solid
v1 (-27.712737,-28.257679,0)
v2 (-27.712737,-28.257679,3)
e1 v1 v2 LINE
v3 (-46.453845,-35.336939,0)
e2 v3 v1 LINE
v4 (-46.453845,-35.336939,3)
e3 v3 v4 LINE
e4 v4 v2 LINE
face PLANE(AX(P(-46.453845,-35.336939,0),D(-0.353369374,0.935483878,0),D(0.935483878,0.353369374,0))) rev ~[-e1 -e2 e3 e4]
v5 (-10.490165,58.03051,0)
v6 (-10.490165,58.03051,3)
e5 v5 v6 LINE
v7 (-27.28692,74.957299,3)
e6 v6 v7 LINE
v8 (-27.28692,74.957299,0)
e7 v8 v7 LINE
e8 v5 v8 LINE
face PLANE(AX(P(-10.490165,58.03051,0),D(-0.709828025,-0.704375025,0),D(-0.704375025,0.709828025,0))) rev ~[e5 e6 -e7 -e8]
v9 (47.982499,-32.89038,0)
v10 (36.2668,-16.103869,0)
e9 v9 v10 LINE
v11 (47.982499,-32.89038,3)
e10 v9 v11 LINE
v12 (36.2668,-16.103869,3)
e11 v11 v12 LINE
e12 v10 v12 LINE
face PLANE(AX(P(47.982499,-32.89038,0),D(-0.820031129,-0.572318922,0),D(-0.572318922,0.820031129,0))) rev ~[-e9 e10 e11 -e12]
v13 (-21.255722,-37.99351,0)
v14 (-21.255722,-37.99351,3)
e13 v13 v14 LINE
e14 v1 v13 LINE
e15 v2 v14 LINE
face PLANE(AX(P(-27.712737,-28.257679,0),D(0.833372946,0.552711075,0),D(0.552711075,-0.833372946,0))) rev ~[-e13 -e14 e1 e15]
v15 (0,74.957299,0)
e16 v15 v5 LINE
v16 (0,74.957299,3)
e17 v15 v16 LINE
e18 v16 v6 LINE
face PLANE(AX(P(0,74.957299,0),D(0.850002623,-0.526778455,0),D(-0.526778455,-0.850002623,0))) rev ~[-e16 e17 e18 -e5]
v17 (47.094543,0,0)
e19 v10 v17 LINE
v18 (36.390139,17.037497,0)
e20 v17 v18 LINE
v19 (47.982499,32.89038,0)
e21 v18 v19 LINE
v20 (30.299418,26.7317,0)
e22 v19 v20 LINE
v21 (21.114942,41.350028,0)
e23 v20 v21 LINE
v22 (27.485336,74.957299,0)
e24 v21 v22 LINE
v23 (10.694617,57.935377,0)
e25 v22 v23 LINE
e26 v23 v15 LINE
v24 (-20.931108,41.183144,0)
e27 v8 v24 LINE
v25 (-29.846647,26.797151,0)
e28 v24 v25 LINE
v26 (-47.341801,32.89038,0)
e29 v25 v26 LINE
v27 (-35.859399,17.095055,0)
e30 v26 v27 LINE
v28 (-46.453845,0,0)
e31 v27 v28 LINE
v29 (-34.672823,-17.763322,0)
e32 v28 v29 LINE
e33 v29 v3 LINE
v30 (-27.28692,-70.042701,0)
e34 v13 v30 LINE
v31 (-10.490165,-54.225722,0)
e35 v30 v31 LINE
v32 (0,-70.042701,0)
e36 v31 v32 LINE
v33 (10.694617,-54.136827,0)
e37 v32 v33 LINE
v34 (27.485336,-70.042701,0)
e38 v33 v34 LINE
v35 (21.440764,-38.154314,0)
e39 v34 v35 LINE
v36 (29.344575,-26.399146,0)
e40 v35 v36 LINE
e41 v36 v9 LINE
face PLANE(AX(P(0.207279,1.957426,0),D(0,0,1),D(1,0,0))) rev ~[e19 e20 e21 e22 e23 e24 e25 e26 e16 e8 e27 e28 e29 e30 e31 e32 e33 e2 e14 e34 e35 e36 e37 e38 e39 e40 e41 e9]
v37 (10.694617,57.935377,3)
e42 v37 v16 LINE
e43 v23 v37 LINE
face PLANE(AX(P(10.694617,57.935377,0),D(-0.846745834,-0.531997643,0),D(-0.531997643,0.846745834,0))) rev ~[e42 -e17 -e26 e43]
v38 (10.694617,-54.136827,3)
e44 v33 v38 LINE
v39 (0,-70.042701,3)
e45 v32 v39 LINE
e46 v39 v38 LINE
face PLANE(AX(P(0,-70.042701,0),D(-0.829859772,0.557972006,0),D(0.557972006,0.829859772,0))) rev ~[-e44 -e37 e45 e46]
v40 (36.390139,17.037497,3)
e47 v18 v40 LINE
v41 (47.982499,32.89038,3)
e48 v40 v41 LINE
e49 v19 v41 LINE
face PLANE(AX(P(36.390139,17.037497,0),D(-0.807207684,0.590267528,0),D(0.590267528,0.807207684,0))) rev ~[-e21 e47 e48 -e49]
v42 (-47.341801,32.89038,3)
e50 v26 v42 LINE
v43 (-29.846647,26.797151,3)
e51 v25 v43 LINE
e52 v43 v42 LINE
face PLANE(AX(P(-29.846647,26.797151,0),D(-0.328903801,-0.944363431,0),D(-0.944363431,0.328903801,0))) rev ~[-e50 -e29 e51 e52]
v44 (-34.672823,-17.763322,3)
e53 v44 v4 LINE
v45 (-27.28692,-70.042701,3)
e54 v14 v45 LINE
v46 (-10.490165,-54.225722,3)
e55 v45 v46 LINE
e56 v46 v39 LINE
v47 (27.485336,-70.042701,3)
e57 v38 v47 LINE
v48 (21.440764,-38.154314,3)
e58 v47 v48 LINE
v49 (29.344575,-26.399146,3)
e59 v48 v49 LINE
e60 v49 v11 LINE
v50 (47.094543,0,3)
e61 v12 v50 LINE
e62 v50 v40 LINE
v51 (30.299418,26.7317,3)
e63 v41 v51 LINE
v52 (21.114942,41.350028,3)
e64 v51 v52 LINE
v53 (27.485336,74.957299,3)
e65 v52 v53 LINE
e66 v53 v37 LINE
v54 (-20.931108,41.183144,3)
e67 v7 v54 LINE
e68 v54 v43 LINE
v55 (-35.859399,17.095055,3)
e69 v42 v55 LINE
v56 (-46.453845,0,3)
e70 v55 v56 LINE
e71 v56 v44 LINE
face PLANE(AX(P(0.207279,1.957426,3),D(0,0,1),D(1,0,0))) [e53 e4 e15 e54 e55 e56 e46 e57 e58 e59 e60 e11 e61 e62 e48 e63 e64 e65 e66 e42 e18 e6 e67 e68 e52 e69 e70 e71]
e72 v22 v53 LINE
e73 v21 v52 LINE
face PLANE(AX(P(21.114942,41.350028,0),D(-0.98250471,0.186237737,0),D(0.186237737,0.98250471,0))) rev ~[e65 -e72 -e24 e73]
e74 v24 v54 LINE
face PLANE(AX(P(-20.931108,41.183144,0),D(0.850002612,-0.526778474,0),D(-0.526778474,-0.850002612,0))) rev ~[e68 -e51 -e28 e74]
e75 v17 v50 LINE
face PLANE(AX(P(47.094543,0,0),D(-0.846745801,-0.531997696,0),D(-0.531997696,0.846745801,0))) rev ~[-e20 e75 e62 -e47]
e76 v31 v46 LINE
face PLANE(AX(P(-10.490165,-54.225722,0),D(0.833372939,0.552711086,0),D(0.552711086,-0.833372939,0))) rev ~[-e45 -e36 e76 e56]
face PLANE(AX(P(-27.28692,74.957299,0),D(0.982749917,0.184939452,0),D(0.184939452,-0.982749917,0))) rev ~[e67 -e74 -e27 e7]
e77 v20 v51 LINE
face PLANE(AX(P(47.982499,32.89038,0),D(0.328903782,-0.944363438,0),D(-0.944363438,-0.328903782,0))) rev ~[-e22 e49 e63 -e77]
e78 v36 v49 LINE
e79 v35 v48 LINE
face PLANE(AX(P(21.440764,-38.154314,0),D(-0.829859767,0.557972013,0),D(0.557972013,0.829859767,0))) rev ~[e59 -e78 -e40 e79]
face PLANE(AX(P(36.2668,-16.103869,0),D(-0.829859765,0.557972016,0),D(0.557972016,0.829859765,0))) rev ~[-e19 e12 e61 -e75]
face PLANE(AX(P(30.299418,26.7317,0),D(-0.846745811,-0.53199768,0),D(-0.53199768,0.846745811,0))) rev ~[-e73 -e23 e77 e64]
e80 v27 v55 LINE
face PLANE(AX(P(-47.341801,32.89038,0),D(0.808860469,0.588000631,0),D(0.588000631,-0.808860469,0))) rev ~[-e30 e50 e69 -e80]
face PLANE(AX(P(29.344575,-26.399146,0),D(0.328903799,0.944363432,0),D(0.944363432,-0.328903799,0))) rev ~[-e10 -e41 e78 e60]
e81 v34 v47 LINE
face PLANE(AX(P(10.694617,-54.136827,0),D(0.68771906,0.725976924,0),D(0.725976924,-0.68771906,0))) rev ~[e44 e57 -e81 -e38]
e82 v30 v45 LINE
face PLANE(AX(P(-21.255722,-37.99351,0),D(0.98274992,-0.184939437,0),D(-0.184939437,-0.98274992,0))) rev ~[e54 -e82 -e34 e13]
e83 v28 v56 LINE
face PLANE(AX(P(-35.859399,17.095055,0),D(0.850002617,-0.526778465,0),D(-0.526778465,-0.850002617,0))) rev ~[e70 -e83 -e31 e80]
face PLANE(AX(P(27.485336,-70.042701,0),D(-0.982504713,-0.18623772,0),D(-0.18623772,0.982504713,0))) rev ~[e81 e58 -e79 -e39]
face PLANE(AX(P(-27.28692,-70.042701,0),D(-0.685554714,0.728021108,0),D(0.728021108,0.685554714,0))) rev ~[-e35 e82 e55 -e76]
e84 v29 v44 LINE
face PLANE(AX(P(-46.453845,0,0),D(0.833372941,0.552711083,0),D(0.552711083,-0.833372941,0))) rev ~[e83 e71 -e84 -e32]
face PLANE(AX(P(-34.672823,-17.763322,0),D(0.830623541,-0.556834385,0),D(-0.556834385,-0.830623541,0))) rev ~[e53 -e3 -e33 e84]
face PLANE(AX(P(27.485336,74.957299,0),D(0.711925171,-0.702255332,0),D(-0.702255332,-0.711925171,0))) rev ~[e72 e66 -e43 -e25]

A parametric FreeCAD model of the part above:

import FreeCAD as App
import Part
import Sketcher
from FreeCAD import Vector


def add_polygon(sketch, points):
    """Adds a closed chain of lines whose ends are joined by coincident constraints."""
    first, n = sketch.GeometryCount, len(points)
    for a, b in zip(points, points[1:] + points[:1]):
        sketch.addGeometry(Part.LineSegment(App.Vector(*a, 0), App.Vector(*b, 0)), False)
    for i in range(n):
        sketch.addConstraint(Sketcher.Constraint("Coincident", first + i, 2, first + (i + 1) % n, 1))

doc = App.newDocument("Part")
params = doc.addObject("Spreadsheet::Sheet", "Params")
for row, (alias, value) in enumerate([
    ("pad1_length", "3 mm"),
], start=1):
    params.set(f"A{row}", alias)
    params.set(f"B{row}", "=" + value)
    params.setAlias(f"B{row}", alias)

body = doc.addObject("PartDesign::Body", "Body")

sketch1 = body.newObject("Sketcher::SketchObject", "Sketch")
sketch1.AttachmentSupport = (doc.getObject("XY_Plane"), [""])
sketch1.MapMode = "FlatFace"
add_polygon(sketch1, [(-35.859399, 17.095055), (-46.453845, 0), (-34.672823, -17.763322), (-46.453845, -35.336939), (-27.712737, -28.257679), (-21.255722, -37.99351), (-27.28692, -70.042701), (-10.490165, -54.225722), (0, -70.042701), (10.694617, -54.136827), (27.485336, -70.042701), (21.440764, -38.154314), (29.344575, -26.399146), (47.982499, -32.89038), (36.2668, -16.103869), (47.094543, 0), (36.390139, 17.037497), (47.982499, 32.89038), (30.299418, 26.7317), (21.114942, 41.350028), (27.485336, 74.957299), (10.694617, 57.935377), (0, 74.957299), (-10.490165, 58.03051), (-27.28692, 74.957299), (-20.931108, 41.183144), (-29.846647, 26.797151), (-47.341801, 32.89038)])
sketch1.addConstraint([
    Sketcher.Constraint("Symmetric", 12, 2, 16, 2, -1),
    Sketcher.Constraint("PointOnObject", 0, 2, -1),
    Sketcher.Constraint("PointOnObject", 7, 2, -2),
    Sketcher.Constraint("PointOnObject", 14, 2, -1),
    Sketcher.Constraint("PointOnObject", 21, 2, -2),
    Sketcher.Constraint("Parallel", 1, 4),
    Sketcher.Constraint("Parallel", 4, 7),
    Sketcher.Constraint("Parallel", 8, 11),
    Sketcher.Constraint("Parallel", 11, 14),
    Sketcher.Constraint("Parallel", 15, 18),
    Sketcher.Constraint("Parallel", 18, 21),
    Sketcher.Constraint("Parallel", 0, 22),
    Sketcher.Constraint("Parallel", 22, 25),
    Sketcher.Constraint("Parallel", 12, 26),
    Sketcher.Constraint("Horizontal", 5, 2, 7, 2),
    Sketcher.Constraint("Horizontal", 7, 2, 9, 2),
    Sketcher.Constraint("Horizontal", 19, 2, 21, 2),
    Sketcher.Constraint("Horizontal", 21, 2, 23, 2),
    Sketcher.Constraint("Horizontal", 16, 2, 26, 2),
    Sketcher.Constraint("Vertical", 0, 2, 2, 2),
    Sketcher.Constraint("Vertical", 9, 2, 19, 2),
    Sketcher.Constraint("Vertical", 8, 2, 20, 2),
    Sketcher.Constraint("Vertical", 6, 2, 22, 2),
    Sketcher.Constraint("Vertical", 5, 2, 23, 2),
    Sketcher.Constraint("Distance", 3, 20.033598),
    Sketcher.Constraint("DistanceY", 5, 2, -1, 1, 70.042701),
    Sketcher.Constraint("DistanceX", -1, 1, 12, 2, 47.982499),
    Sketcher.Constraint("DistanceX", -1, 1, 13, 2, 36.2668),
    Sketcher.Constraint("DistanceY", -1, 1, 17, 2, 26.7317),
    Sketcher.Constraint("DistanceY", -1, 1, 19, 2, 74.957299),
    Sketcher.Constraint("DistanceX", 26, 2, -1, 1, 47.341801),
    Sketcher.Constraint("DistanceX", 27, 2, -1, 1, 35.859399),
    Sketcher.Constraint("DistanceX", 1, 2, 4, 2, 13.417101),
    Sketcher.Constraint("DistanceY", 6, 2, 1, 2, 36.4624),
    Sketcher.Constraint("DistanceX", 6, 2, 9, 2, 37.975501),
    Sketcher.Constraint("DistanceX", 18, 2, 14, 2, 25.979601),
    Sketcher.Constraint("DistanceX", 20, 2, 17, 2, 19.604801),
    Sketcher.Constraint("DistanceX", 0, 2, 25, 2, 16.607198),
    Sketcher.Constraint("Distance", 2, 21.157138),
    Sketcher.Constraint("Distance", 4, 11.682442),
    Sketcher.Constraint("Distance", 8, 19.166942),
    Sketcher.Constraint("Distance", 14, 19.405531),
    Sketcher.Constraint("Distance", 17, 18.724868),
    Sketcher.Constraint("Distance", 19, 34.20571),
    Sketcher.Constraint("Distance", 24, 34.366988),
    Sketcher.Constraint("Distance", 26, 18.52587),
    Sketcher.Constraint("DistanceY", 1, 2, -1, 1, 17.763322),
    Sketcher.Constraint("DistanceY", 2, 2, -1, 1, 35.336939),
    Sketcher.Constraint("DistanceX", 4, 2, -1, 1, 21.255722),
    Sketcher.Constraint("DistanceX", 5, 2, -1, 1, 27.28692),
    Sketcher.Constraint("DistanceY", 12, 2, -1, 1, 32.89038),
    Sketcher.Constraint("DistanceX", -1, 1, 15, 2, 36.390139),
    Sketcher.Constraint("DistanceY", -1, 1, 22, 2, 58.03051),
    Sketcher.Constraint("DistanceX", 10, 2, 9, 2, 6.044572),
    Sketcher.Constraint("DistanceX", 10, 2, 11, 2, 7.903811),
])
pad1 = body.newObject("PartDesign::Pad", "Pad")
pad1.Profile = sketch1
pad1.setExpression("Length", "Params.pad1_length")

doc.recompute()
